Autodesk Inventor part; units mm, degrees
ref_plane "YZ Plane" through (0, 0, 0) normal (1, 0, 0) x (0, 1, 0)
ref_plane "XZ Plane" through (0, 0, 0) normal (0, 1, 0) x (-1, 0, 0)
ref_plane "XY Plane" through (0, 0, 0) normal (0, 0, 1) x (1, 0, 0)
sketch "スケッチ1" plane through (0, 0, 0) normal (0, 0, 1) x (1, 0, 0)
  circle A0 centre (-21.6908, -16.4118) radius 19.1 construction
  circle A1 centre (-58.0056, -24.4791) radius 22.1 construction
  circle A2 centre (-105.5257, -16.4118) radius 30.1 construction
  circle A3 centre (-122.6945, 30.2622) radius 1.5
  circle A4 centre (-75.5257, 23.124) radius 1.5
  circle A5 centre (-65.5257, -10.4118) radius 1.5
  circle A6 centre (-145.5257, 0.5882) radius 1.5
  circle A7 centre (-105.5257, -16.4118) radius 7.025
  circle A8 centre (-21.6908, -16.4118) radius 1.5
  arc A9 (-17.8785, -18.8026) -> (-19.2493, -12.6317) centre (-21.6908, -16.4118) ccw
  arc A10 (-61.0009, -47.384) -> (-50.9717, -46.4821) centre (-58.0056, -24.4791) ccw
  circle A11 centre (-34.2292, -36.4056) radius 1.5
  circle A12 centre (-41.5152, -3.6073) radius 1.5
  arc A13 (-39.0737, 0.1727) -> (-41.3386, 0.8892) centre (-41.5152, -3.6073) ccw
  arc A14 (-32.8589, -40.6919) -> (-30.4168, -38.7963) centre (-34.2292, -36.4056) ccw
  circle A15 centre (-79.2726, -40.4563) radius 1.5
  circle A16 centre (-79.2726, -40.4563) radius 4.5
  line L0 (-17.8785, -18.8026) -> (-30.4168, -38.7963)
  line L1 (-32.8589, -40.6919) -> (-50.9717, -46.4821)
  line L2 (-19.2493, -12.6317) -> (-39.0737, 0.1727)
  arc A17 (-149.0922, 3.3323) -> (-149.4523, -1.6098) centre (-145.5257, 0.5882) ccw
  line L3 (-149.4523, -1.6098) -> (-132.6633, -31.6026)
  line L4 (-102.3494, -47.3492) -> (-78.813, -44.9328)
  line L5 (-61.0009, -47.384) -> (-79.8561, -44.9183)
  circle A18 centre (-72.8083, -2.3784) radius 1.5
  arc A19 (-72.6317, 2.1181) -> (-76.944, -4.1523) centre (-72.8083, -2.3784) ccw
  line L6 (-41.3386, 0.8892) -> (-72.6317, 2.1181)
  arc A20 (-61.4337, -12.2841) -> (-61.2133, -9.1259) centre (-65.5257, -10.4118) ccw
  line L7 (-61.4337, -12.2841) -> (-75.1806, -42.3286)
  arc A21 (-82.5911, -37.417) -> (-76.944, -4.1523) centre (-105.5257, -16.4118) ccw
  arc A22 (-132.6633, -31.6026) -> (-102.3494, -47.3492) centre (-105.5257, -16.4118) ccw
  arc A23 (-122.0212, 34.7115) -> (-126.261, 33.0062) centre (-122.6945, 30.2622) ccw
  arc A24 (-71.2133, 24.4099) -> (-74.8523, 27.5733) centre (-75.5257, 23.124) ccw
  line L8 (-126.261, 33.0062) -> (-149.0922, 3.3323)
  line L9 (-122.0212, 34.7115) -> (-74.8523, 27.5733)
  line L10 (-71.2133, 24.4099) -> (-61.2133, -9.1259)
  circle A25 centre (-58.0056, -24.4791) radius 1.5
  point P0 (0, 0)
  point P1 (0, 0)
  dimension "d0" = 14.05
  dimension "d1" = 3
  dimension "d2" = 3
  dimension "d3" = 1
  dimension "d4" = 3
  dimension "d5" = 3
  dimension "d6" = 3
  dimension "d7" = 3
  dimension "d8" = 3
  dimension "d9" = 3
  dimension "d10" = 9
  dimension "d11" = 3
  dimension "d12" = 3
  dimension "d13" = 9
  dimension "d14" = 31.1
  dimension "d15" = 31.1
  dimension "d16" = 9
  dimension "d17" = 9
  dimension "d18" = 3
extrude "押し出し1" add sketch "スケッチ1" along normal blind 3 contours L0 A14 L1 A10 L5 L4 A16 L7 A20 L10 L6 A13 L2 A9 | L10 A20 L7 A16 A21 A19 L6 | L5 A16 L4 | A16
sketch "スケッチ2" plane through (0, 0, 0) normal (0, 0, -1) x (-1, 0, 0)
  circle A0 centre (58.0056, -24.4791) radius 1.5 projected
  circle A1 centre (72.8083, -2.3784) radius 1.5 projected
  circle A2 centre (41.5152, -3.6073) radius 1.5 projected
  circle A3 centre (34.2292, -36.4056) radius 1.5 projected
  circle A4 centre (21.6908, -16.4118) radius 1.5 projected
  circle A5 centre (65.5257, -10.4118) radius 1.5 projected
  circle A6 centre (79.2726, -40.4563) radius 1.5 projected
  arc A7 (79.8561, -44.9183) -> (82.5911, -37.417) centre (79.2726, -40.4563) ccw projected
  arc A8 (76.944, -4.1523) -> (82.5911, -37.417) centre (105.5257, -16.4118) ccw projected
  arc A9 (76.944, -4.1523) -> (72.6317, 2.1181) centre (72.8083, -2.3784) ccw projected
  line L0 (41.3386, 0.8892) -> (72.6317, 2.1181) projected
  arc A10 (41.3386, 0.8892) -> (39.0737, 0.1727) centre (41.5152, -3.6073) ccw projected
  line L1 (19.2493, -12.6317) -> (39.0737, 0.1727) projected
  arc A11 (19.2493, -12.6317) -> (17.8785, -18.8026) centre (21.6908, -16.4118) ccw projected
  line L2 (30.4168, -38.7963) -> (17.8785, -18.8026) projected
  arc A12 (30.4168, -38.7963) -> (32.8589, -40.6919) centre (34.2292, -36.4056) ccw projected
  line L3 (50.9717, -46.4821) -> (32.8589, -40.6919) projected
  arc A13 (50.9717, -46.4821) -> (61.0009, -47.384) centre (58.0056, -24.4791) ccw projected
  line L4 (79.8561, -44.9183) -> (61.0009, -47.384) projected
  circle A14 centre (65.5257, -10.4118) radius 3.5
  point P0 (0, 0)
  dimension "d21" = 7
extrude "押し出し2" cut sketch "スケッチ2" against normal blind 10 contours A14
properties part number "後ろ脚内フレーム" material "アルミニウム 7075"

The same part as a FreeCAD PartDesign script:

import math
import FreeCAD as App
import Part
import Sketcher
from FreeCAD import Vector
Q = App.Units.Quantity

doc = App.newDocument("Part")
body = doc.addObject("PartDesign::Body", "Body")

sketch1 = body.newObject("Sketcher::SketchObject", "Sketch")
sketch1.AttachmentSupport = (doc.getObject("XY_Plane"), [""])
sketch1.MapMode = "FlatFace"
sketch1.addGeometry([
    Part.LineSegment(Vector(-30.4, -38.8, 0), Vector(-17.9, -18.8, 0)),
    Part.ArcOfCircle(Part.Circle(Vector(-21.7, -16.4, 0), Vector(0, 0, 1), 4.5), math.radians(-32), math.radians(57)),
    Part.LineSegment(Vector(-19.2, -12.6, 0), Vector(-39.1, 0.2, 0)),
    Part.ArcOfCircle(Part.Circle(Vector(-41.5, -3.6, 0), Vector(0, 0, 1), 4.5), math.radians(57), math.radians(88)),
    Part.LineSegment(Vector(-41.3, 0.9, 0), Vector(-72.6, 2.1, 0)),
    Part.ArcOfCircle(Part.Circle(Vector(-72.8, -2.4, 0), Vector(0, 0, 1), 4.5), math.radians(88), math.radians(203)),
    Part.ArcOfCircle(Part.Circle(Vector(-105.5, -16.4, 0), Vector(0, 0, 1), 31.1), math.radians(-42), math.radians(23)),
    Part.ArcOfCircle(Part.Circle(Vector(-79.3, -40.5, 0), Vector(0, 0, 1), 4.5), math.radians(138), math.radians(263)),
    Part.LineSegment(Vector(-79.9, -44.9, 0), Vector(-61, -47.4, 0)),
    Part.ArcOfCircle(Part.Circle(Vector(-58, -24.5, 0), Vector(0, 0, 1), 23.1), math.radians(-97), math.radians(-72)),
    Part.LineSegment(Vector(-51, -46.5, 0), Vector(-32.9, -40.7, 0)),
    Part.ArcOfCircle(Part.Circle(Vector(-34.2, -36.4, 0), Vector(0, 0, 1), 4.5), math.radians(-72), math.radians(-32)),
    Part.Circle(Vector(-34.2, -36.4, 0), Vector(0, 0, 1), 1.5),
    Part.Circle(Vector(-58, -24.5, 0), Vector(0, 0, 1), 1.5),
    Part.Circle(Vector(-21.7, -16.4, 0), Vector(0, 0, 1), 1.5),
    Part.Circle(Vector(-41.5, -3.6, 0), Vector(0, 0, 1), 1.5),
    Part.Circle(Vector(-79.3, -40.5, 0), Vector(0, 0, 1), 1.5),
    Part.Circle(Vector(-65.5, -10.4, 0), Vector(0, 0, 1), 1.5),
    Part.Circle(Vector(-72.8, -2.4, 0), Vector(0, 0, 1), 1.5),
], False)
sketch1.addConstraint([
    Sketcher.Constraint("Tangent", 0, 2, 1, 1),
    Sketcher.Constraint("Tangent", 1, 2, 2, 1),
    Sketcher.Constraint("Tangent", 2, 2, 3, 1),
    Sketcher.Constraint("Tangent", 3, 2, 4, 1),
    Sketcher.Constraint("Tangent", 4, 2, 5, 1),
    Sketcher.Constraint("Tangent", 5, 2, 6, 2),
    Sketcher.Constraint("Tangent", 6, 1, 7, 1),
    Sketcher.Constraint("Tangent", 7, 2, 8, 1),
    Sketcher.Constraint("Tangent", 8, 2, 9, 1),
    Sketcher.Constraint("Tangent", 9, 2, 10, 1),
    Sketcher.Constraint("Tangent", 10, 2, 11, 1),
    Sketcher.Constraint("Tangent", 11, 2, 0, 1),
    Sketcher.Constraint("Coincident", 12, 3, 11, 3),
    Sketcher.Constraint("Coincident", 13, 3, 9, 3),
    Sketcher.Constraint("Coincident", 14, 3, 1, 3),
    Sketcher.Constraint("Coincident", 15, 3, 3, 3),
    Sketcher.Constraint("Coincident", 16, 3, 7, 3),
    Sketcher.Constraint("Coincident", 18, 3, 5, 3),
    Sketcher.Constraint("Equal", 1, 3),
    Sketcher.Constraint("Equal", 3, 5),
    Sketcher.Constraint("Equal", 5, 7),
    Sketcher.Constraint("Equal", 7, 11),
    Sketcher.Constraint("Equal", 12, 13),
    Sketcher.Constraint("Equal", 13, 14),
    Sketcher.Constraint("Equal", 14, 15),
    Sketcher.Constraint("Equal", 15, 16),
    Sketcher.Constraint("Equal", 16, 17),
    Sketcher.Constraint("Equal", 17, 18),
    Sketcher.Constraint("Horizontal", 1, 3, 6, 3),
    Sketcher.Constraint("Equal", 0, 2),
    Sketcher.Constraint("Equal", 8, 10),
    Sketcher.Constraint("Diameter", 12, 3.0),
    Sketcher.Constraint("Radius", 1, 4.5),
    Sketcher.Constraint("Radius", 6, 31.1),
    Sketcher.Constraint("Radius", 9, 23.1),
    Sketcher.Constraint("Distance", 0, 23.6),
    Sketcher.Constraint("Angle", 4, Q("177.751 deg")),
    Sketcher.Constraint("Angle", 8, Q("-7.4503 deg")),
    Sketcher.Constraint("DistanceX", 6, 3, 9, 3, 47.52),
    Sketcher.Constraint("DistanceX", 17, 3, 9, 3, 7.52),
    Sketcher.Constraint("DistanceY", 1, 3, 1, 2, 3.78),
    Sketcher.Constraint("DistanceY", 17, 3, 4, 2, 12.53),
    Sketcher.Constraint("DistanceY", 10, 2, 1, 3, 24.28),
    Sketcher.Constraint("DistanceY", 9, 3, -1, 1, 24.479),
    Sketcher.Constraint("DistanceY", -1, 1, 4, 2, 2.118),
    Sketcher.Constraint("DistanceX", 5, 2, -1, 1, 76.944),
])
pad1 = body.newObject("PartDesign::Pad", "Pad")
pad1.Profile = sketch1
pad1.Length = 3

sketch2 = body.newObject("Sketcher::SketchObject", "Sketch001")
sketch2.AttachmentSupport = (doc.getObject("XY_Plane"), [""])
sketch2.MapMode = "FlatFace"
sketch2.addGeometry([
    Part.Circle(Vector(-65.5, -10.4, 0), Vector(0, 0, 1), 3.5),
    Part.Circle(Vector(-65.5, -10.4, 0), Vector(0, 0, 1), 1.5),
], False)
sketch2.addConstraint([
    Sketcher.Constraint("Coincident", 1, 3, 0, 3),
    Sketcher.Constraint("Diameter", 0, 7.0),
    Sketcher.Constraint("Diameter", 1, 3.0),
    Sketcher.Constraint("DistanceX", 0, 3, -1, 1, 65.5257),
    Sketcher.Constraint("DistanceY", 0, 3, -1, 1, 10.4118),
])
pocket1 = body.newObject("PartDesign::Pocket", "Pocket")
pocket1.Profile = sketch2
pocket1.Length = 10
pocket1.Reversed = True

doc.recompute()
